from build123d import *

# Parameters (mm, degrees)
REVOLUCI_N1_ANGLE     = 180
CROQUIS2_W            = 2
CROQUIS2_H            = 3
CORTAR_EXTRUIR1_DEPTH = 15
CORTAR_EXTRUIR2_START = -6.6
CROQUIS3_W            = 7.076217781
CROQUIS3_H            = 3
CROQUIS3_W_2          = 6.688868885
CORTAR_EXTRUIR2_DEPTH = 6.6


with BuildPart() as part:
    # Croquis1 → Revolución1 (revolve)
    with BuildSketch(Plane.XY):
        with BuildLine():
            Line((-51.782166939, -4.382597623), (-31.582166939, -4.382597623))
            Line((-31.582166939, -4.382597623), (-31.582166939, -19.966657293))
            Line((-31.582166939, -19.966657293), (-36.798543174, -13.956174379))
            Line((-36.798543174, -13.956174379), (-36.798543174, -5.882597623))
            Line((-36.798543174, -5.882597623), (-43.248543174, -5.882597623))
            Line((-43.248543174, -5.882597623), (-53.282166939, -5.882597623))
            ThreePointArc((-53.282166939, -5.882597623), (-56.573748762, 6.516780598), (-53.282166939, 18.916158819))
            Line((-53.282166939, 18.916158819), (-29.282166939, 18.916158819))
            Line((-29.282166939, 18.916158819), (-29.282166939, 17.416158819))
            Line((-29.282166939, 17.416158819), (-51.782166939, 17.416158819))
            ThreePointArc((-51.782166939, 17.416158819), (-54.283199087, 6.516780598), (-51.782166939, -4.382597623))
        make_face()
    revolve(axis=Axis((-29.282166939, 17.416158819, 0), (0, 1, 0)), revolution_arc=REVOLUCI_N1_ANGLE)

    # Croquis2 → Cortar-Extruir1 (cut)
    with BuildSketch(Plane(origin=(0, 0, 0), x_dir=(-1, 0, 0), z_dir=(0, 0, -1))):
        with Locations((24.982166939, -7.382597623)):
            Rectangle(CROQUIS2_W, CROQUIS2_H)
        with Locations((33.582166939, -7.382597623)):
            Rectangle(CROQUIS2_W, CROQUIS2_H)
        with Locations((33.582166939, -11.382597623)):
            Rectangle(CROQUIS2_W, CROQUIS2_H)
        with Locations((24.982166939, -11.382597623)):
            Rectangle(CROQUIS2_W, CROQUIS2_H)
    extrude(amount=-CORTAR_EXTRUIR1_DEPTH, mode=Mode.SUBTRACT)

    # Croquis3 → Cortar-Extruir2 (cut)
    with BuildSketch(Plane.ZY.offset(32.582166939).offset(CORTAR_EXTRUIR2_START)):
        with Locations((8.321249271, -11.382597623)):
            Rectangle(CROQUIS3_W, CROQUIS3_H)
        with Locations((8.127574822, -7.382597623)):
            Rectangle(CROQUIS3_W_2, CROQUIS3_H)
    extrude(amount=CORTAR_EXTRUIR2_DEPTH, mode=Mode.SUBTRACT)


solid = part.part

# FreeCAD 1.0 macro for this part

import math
import FreeCAD as App
import Part
import Sketcher


def add_polygon(sketch, points):
    """Adds a closed chain of lines whose ends are joined by coincident constraints."""
    first, n = sketch.GeometryCount, len(points)
    for a, b in zip(points, points[1:] + points[:1]):
        sketch.addGeometry(Part.LineSegment(App.Vector(*a, 0), App.Vector(*b, 0)), False)
    for i in range(n):
        sketch.addConstraint(Sketcher.Constraint("Coincident", first + i, 2, first + (i + 1) % n, 1))

doc = App.newDocument("Part")
body = doc.addObject("PartDesign::Body", "Body")

sketch1 = body.newObject("Sketcher::SketchObject", "Sketch")
sketch1.AttachmentSupport = (doc.getObject("XY_Plane"), [""])
sketch1.MapMode = "FlatFace"
sketch1.addGeometry([
    Part.LineSegment(App.Vector(-31.6, -4.4, 0), App.Vector(-51.8, -4.4, 0)),
    Part.ArcOfCircle(Part.Circle(App.Vector(-29.3, 6.5, 0), App.Vector(0, 0, 1), 25), math.radians(154), math.radians(206)),
    Part.LineSegment(App.Vector(-51.8, 17.4, 0), App.Vector(-29.3, 17.4, 0)),
    Part.LineSegment(App.Vector(-29.3, 17.4, 0), App.Vector(-29.3, 18.9, 0)),
    Part.LineSegment(App.Vector(-29.3, 18.9, 0), App.Vector(-53.3, 18.9, 0)),
    Part.ArcOfCircle(Part.Circle(App.Vector(-31.6, 6.5, 0), App.Vector(0, 0, 1), 25), math.radians(150), math.radians(210)),
    Part.LineSegment(App.Vector(-53.3, -5.9, 0), App.Vector(-36.8, -5.9, 0)),
    Part.LineSegment(App.Vector(-36.8, -5.9, 0), App.Vector(-36.8, -14, 0)),
    Part.LineSegment(App.Vector(-36.8, -14, 0), App.Vector(-31.6, -20, 0)),
    Part.LineSegment(App.Vector(-31.6, -20, 0), App.Vector(-31.6, -4.4, 0)),
], False)
sketch1.addGeometry(Part.LineSegment(App.Vector(-29.3, -20, 0), App.Vector(-29.3, 18.9, 0)), True)
sketch1.addConstraint([
    Sketcher.Constraint("Coincident", 0, 2, 1, 2),
    Sketcher.Constraint("Coincident", 1, 1, 2, 1),
    Sketcher.Constraint("Coincident", 2, 2, 3, 1),
    Sketcher.Constraint("Coincident", 3, 2, 4, 1),
    Sketcher.Constraint("Coincident", 4, 2, 5, 1),
    Sketcher.Constraint("Coincident", 5, 2, 6, 1),
    Sketcher.Constraint("Coincident", 6, 2, 7, 1),
    Sketcher.Constraint("Coincident", 7, 2, 8, 1),
    Sketcher.Constraint("Coincident", 8, 2, 9, 1),
    Sketcher.Constraint("Coincident", 9, 2, 0, 1),
    Sketcher.Constraint("Horizontal", 0),
    Sketcher.Constraint("Horizontal", 2),
    Sketcher.Constraint("Vertical", 3),
    Sketcher.Constraint("Horizontal", 4),
    Sketcher.Constraint("Horizontal", 6),
    Sketcher.Constraint("Vertical", 7),
    Sketcher.Constraint("Vertical", 9),
    Sketcher.Constraint("Vertical", 10),
    Sketcher.Constraint("Coincident", 10, 2, 3, 2),
    Sketcher.Constraint("Equal", 1, 5),
    Sketcher.Constraint("Horizontal", 1, 3, 5, 3),
    Sketcher.Constraint("Horizontal", 8, 2, 10, 1),
    Sketcher.Constraint("Vertical", 0, 2, 1, 1),
    Sketcher.Constraint("Vertical", 4, 2, 5, 2),
    Sketcher.Constraint("Radius", 1, 25.0),
    Sketcher.Constraint("DistanceX", 4, 2, 4, 1, 24.0),
    Sketcher.Constraint("DistanceX", 0, 2, 0, 1, 20.2),
    Sketcher.Constraint("DistanceX", 2, 1, 2, 2, 22.5),
    Sketcher.Constraint("DistanceY", 3, 1, 3, 2, 1.5),
    Sketcher.Constraint("DistanceY", 9, 1, 9, 2, 15.58406),
    Sketcher.Constraint("DistanceX", 1, 3, -1, 1, 29.283199),
    Sketcher.Constraint("DistanceX", 6, 1, 6, 2, 16.483624),
    Sketcher.Constraint("DistanceY", 7, 2, 7, 1, 8.073577),
    Sketcher.Constraint("DistanceY", 10, 1, 10, 2, 38.882816),
    Sketcher.Constraint("DistanceY", -1, 1, 1, 3, 6.516781),
])
revolution = body.newObject("PartDesign::Revolution", "Revolution")
revolution.Profile = sketch1
revolution.ReferenceAxis = (sketch1, ["Axis0"])
revolution.Angle = 180

sketch2 = body.newObject("Sketcher::SketchObject", "Sketch001")
sketch2.AttachmentSupport = (doc.getObject("XY_Plane"), [""])
sketch2.MapMode = "FlatFace"
add_polygon(sketch2, [(-24, -5.9), (-24, -8.9), (-26, -8.9), (-26, -5.9)])
add_polygon(sketch2, [(-32.6, -5.9), (-32.6, -8.9), (-34.6, -8.9), (-34.6, -5.9)])
add_polygon(sketch2, [(-32.6, -9.9), (-32.6, -12.9), (-34.6, -12.9), (-34.6, -9.9)])
add_polygon(sketch2, [(-24, -9.9), (-24, -12.9), (-26, -12.9), (-26, -9.9)])
sketch2.addConstraint([
    Sketcher.Constraint("Vertical", 0),
    Sketcher.Constraint("Horizontal", 1),
    Sketcher.Constraint("Vertical", 2),
    Sketcher.Constraint("Horizontal", 3),
    Sketcher.Constraint("Vertical", 4),
    Sketcher.Constraint("Horizontal", 5),
    Sketcher.Constraint("Vertical", 6),
    Sketcher.Constraint("Horizontal", 7),
    Sketcher.Constraint("Vertical", 8),
    Sketcher.Constraint("Horizontal", 9),
    Sketcher.Constraint("Vertical", 10),
    Sketcher.Constraint("Horizontal", 11),
    Sketcher.Constraint("Vertical", 12),
    Sketcher.Constraint("Horizontal", 13),
    Sketcher.Constraint("Vertical", 14),
    Sketcher.Constraint("Horizontal", 15),
    Sketcher.Constraint("Horizontal", 1, 2, 4, 2),
    Sketcher.Constraint("Horizontal", 3, 2, 6, 2),
    Sketcher.Constraint("Horizontal", 9, 2, 12, 2),
    Sketcher.Constraint("Horizontal", 11, 2, 14, 2),
    Sketcher.Constraint("Vertical", 7, 2, 8, 2),
    Sketcher.Constraint("Vertical", 6, 2, 9, 2),
    Sketcher.Constraint("Vertical", 3, 2, 12, 2),
    Sketcher.Constraint("Vertical", 2, 2, 13, 2),
    Sketcher.Constraint("Equal", 3, 5),
    Sketcher.Constraint("Equal", 6, 8),
    Sketcher.Constraint("DistanceX", 1, 2, 1, 1, 2.0),
    Sketcher.Constraint("DistanceY", 0, 2, 0, 1, 3.0),
    Sketcher.Constraint("DistanceY", 8, 2, 4, 2, 4.0),
    Sketcher.Constraint("DistanceX", 4, 2, 1, 2, 6.6),
    Sketcher.Constraint("DistanceX", 0, 2, -1, 1, 23.982167),
    Sketcher.Constraint("DistanceY", 0, 2, -1, 1, 8.882598),
])
pocket1 = body.newObject("PartDesign::Pocket", "Pocket")
pocket1.Profile = sketch2
pocket1.Length = 15
pocket1.Reversed = True

sketch3 = body.newObject("Sketcher::SketchObject", "Sketch002")
sketch3.AttachmentSupport = (doc.getObject("YZ_Plane"), [""])
sketch3.MapMode = "FlatFace"
sketch3.AttachmentOffset = App.Placement(App.Vector(0, 0, -25.982167), App.Rotation())
add_polygon(sketch3, [(-9.9, 4.8), (-12.9, 4.8), (-12.9, 11.9), (-9.9, 11.9)])
add_polygon(sketch3, [(-5.9, 4.8), (-8.9, 4.8), (-8.9, 11.5), (-5.9, 11.5)])
sketch3.addConstraint([
    Sketcher.Constraint("Horizontal", 0),
    Sketcher.Constraint("Vertical", 1),
    Sketcher.Constraint("Horizontal", 2),
    Sketcher.Constraint("Vertical", 3),
    Sketcher.Constraint("Horizontal", 4),
    Sketcher.Constraint("Vertical", 5),
    Sketcher.Constraint("Horizontal", 6),
    Sketcher.Constraint("Vertical", 7),
    Sketcher.Constraint("Horizontal", 3, 2, 4, 2),
    Sketcher.Constraint("Equal", 2, 4),
    Sketcher.Constraint("DistanceX", 0, 2, 0, 1, 3.0),
    Sketcher.Constraint("DistanceX", 3, 2, 4, 2, 1.0),
    Sketcher.Constraint("DistanceY", 5, 1, 5, 2, 6.688869),
    Sketcher.Constraint("DistanceY", 1, 1, 1, 2, 7.076218),
    Sketcher.Constraint("DistanceY", -1, 1, 0, 2, 4.78314),
    Sketcher.Constraint("DistanceX", 0, 2, -1, 1, 12.882598),
])
pocket2 = body.newObject("PartDesign::Pocket", "Pocket001")
pocket2.Profile = sketch3
pocket2.Length = 6.6

doc.recompute()
